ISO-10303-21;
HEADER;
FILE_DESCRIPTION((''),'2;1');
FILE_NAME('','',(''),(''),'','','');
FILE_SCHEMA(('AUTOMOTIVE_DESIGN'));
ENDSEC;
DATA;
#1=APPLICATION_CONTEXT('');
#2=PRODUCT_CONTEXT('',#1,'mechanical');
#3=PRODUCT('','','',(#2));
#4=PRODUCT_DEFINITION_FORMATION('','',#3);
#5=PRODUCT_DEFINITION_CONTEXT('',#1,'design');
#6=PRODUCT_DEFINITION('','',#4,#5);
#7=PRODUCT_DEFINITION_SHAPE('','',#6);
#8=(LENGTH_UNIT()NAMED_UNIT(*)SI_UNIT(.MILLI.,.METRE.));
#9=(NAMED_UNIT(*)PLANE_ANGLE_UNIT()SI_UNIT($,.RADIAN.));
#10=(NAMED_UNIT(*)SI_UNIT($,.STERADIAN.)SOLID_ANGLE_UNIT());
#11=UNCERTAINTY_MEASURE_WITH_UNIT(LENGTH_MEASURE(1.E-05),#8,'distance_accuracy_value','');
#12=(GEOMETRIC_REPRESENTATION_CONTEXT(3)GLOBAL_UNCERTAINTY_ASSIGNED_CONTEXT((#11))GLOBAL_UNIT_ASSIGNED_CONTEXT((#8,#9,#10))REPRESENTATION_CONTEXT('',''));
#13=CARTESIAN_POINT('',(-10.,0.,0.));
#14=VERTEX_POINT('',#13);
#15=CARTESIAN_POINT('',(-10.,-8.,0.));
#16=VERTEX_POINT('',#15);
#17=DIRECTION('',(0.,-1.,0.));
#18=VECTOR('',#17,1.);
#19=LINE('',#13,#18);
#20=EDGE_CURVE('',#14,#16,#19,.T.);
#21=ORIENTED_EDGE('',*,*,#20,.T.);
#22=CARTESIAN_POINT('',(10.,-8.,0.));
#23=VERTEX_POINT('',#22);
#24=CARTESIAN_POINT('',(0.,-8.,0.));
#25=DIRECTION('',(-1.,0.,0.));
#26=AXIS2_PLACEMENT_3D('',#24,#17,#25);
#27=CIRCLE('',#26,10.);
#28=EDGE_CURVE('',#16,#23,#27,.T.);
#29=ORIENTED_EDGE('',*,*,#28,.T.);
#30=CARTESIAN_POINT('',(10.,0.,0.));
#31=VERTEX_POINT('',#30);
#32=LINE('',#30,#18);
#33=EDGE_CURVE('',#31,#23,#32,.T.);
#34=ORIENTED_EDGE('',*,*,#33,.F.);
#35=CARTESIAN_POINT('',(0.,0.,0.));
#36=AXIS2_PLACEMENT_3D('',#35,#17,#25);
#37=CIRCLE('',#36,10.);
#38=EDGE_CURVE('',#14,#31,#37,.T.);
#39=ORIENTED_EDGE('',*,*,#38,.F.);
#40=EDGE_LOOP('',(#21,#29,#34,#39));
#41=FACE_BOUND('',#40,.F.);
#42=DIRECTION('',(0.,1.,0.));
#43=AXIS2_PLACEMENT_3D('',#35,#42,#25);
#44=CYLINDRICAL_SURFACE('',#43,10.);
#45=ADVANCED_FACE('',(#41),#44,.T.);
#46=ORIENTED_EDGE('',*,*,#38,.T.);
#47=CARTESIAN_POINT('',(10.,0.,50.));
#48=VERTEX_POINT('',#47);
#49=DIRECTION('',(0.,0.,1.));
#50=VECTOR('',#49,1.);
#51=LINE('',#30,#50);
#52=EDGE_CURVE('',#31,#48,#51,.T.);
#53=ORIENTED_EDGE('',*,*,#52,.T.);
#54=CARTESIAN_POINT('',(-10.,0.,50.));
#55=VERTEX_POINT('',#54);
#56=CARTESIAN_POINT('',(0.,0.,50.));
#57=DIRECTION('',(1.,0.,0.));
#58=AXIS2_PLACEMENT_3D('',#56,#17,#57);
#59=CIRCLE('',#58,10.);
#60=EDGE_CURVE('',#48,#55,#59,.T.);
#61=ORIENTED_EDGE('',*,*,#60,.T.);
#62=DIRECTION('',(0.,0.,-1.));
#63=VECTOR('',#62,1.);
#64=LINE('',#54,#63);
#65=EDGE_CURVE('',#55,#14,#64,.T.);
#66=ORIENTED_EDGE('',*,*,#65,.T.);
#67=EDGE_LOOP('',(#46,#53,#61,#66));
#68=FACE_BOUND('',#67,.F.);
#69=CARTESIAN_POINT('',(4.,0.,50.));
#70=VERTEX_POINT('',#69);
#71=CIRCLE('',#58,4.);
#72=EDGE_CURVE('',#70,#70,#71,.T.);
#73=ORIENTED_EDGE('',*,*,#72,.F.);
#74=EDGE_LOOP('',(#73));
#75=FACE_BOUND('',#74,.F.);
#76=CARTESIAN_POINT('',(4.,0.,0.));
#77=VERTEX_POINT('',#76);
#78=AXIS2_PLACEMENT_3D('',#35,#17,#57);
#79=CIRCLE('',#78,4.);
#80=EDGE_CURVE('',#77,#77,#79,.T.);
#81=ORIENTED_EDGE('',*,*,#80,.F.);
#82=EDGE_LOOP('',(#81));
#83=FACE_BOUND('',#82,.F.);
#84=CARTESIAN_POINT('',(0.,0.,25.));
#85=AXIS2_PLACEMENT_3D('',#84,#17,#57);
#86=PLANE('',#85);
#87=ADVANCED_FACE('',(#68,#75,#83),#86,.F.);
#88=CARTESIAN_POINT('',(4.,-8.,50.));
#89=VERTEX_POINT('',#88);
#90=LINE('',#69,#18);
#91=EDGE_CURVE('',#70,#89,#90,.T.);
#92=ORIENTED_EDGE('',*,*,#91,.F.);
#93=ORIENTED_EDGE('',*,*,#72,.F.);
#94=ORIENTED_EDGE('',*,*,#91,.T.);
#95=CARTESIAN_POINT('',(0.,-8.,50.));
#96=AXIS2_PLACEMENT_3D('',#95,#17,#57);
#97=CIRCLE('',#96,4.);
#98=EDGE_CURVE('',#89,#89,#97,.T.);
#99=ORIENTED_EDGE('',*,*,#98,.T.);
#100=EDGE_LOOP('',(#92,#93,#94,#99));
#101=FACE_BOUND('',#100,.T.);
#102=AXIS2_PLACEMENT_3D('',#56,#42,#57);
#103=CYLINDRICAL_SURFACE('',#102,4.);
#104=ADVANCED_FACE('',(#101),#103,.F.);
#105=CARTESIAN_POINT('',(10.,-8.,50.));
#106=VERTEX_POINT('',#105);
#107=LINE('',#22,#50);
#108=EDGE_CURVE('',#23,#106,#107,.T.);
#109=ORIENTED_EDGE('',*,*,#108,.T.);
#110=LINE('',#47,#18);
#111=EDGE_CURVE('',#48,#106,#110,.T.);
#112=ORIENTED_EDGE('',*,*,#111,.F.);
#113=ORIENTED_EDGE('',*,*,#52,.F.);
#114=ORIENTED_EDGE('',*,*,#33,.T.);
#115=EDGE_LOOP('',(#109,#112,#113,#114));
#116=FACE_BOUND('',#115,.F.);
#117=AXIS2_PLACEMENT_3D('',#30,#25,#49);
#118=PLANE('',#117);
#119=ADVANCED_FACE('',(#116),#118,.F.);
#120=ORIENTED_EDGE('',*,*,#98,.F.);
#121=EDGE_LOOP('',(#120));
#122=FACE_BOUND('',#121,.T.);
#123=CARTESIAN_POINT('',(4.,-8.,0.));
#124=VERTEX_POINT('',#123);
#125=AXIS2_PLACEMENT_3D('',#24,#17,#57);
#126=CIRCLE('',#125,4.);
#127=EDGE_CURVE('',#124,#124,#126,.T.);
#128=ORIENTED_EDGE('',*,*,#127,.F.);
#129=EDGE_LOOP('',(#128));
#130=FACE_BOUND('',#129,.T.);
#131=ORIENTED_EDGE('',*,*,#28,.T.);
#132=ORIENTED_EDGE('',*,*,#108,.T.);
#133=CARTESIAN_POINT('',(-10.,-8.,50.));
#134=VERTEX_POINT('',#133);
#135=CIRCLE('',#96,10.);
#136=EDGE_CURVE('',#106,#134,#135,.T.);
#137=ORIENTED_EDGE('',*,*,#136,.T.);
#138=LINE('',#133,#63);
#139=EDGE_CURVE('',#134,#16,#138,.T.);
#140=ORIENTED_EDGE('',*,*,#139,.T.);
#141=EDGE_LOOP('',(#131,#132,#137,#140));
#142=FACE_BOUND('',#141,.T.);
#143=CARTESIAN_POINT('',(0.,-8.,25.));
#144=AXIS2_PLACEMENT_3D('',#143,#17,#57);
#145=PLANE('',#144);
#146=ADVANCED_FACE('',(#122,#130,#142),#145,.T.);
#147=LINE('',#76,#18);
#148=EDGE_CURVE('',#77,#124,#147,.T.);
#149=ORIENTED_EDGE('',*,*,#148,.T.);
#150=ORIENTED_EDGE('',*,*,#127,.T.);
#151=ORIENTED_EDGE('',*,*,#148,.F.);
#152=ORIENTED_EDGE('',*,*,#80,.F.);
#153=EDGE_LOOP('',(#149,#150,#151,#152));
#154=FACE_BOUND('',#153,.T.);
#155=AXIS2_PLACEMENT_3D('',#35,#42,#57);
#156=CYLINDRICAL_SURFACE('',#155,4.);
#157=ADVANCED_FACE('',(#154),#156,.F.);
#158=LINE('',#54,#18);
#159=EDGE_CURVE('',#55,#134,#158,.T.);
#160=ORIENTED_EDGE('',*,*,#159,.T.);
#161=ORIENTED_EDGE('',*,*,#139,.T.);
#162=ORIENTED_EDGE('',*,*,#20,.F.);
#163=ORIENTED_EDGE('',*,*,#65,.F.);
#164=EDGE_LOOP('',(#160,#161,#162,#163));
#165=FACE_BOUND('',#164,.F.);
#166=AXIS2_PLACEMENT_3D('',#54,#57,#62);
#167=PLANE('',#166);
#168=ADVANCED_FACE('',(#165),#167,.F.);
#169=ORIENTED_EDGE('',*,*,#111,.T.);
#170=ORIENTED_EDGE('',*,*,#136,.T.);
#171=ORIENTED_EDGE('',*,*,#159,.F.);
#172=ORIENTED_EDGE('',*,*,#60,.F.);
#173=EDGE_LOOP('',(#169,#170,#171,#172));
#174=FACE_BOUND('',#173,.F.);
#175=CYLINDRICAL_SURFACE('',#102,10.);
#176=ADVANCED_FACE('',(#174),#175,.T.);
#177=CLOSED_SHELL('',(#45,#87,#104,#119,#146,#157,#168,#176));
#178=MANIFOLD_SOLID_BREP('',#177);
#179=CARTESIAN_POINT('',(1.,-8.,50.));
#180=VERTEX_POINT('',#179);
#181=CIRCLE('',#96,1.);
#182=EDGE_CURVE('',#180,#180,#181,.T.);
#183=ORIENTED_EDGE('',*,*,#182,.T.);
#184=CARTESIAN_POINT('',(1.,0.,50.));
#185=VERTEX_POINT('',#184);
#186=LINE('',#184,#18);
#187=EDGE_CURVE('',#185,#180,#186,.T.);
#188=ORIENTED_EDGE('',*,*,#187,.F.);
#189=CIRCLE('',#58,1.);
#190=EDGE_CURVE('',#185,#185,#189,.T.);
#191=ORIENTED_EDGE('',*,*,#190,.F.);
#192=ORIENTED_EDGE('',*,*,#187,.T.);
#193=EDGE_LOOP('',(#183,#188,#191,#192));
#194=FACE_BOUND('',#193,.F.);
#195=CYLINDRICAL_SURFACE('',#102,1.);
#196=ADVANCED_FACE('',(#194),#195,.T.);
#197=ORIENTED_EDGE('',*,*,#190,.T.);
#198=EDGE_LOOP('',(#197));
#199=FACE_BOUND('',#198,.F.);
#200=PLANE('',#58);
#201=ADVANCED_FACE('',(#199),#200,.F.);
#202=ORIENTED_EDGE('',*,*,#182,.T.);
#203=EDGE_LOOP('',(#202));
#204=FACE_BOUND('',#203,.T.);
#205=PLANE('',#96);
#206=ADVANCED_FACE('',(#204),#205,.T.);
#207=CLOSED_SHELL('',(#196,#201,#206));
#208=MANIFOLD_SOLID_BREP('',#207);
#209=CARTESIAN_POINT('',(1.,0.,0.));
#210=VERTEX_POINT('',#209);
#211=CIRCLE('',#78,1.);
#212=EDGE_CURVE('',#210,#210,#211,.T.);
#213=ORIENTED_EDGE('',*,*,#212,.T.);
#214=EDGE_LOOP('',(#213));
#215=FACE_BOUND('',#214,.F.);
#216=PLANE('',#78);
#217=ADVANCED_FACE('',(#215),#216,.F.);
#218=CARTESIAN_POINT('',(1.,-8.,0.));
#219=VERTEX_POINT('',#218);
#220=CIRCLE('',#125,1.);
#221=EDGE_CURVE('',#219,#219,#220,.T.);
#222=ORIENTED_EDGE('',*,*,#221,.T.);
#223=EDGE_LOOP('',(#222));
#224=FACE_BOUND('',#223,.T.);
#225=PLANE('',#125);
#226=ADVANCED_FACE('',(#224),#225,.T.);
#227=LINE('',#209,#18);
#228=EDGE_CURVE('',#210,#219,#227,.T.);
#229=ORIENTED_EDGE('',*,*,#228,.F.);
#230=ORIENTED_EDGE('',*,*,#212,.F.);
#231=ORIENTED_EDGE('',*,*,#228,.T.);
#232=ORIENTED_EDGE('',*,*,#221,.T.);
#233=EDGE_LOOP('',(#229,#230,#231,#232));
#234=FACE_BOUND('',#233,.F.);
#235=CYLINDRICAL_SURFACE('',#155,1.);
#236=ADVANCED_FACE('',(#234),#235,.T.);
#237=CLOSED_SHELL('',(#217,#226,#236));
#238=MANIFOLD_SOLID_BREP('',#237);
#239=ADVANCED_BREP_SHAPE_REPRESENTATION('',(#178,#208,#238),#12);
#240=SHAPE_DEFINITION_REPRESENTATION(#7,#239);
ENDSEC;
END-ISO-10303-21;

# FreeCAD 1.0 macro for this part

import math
import FreeCAD as App
import Part
import Sketcher
Q = App.Units.Quantity

doc = App.newDocument("Part")
body = doc.addObject("PartDesign::Body", "Body")

sketch1 = doc.addObject("Sketcher::SketchObject", "Sketch")
body.addObject(sketch1)
sketch1.AttachmentSupport = (doc.XZ_Plane, [""])
sketch1.MapMode = "FlatFace"
sketch1.addGeometry([
    Part.LineSegment(App.Vector(-10, 50, 0), App.Vector(-10, 0, 0)),
    Part.ArcOfCircle(Part.Circle(App.Vector(0, 0, 0), App.Vector(0, 0, 1), 10), math.radians(180), math.radians(360)),
    Part.LineSegment(App.Vector(10, 0, 0), App.Vector(10, 50, 0)),
    Part.ArcOfCircle(Part.Circle(App.Vector(0, 50, 0), App.Vector(0, 0, 1), 10), math.radians(0), math.radians(180)),
    Part.Circle(App.Vector(0, 0, 0), App.Vector(0, 0, 1), 4),
    Part.Circle(App.Vector(0, 50, 0), App.Vector(0, 0, 1), 4),
], False)
sketch1.addConstraint([
    Sketcher.Constraint("Tangent", 0, 2, 1, 1),
    Sketcher.Constraint("Tangent", 1, 2, 2, 1),
    Sketcher.Constraint("Tangent", 2, 2, 3, 1),
    Sketcher.Constraint("Tangent", 3, 2, 0, 1),
    Sketcher.Constraint("Vertical", 0),
    Sketcher.Constraint("Vertical", 2),
    Sketcher.Constraint("Coincident", 1, 3, -1, 1),
    Sketcher.Constraint("Coincident", 4, 3, -1, 1),
    Sketcher.Constraint("Coincident", 5, 3, 3, 3),
    Sketcher.Constraint("Equal", 4, 5),
    Sketcher.Constraint("Diameter", 4, Q("8 mm")),
    Sketcher.Constraint("Radius", 1, Q("10 mm")),
    Sketcher.Constraint("DistanceY", 0, 2, 0, 1, Q("50 mm")),
])
pad1 = doc.addObject("PartDesign::Pad", "Pad")
body.addObject(pad1)
pad1.Profile = sketch1
pad1.Length = 8
body2 = doc.addObject("PartDesign::Body", "Body001")
body2.AllowCompound = True

sketch2 = doc.addObject("Sketcher::SketchObject", "Sketch001")
body2.addObject(sketch2)
sketch2.AttachmentSupport = (doc.getObject("XZ_Plane001"), [""])
sketch2.MapMode = "FlatFace"
sketch2.addGeometry([
    Part.Circle(App.Vector(0, 0, 0), App.Vector(0, 0, 1), 1),
    Part.Circle(App.Vector(0, 50, 0), App.Vector(0, 0, 1), 1),
], False)
sketch2.addConstraint([
    Sketcher.Constraint("Coincident", 0, 3, -1, 1),
    Sketcher.Constraint("Equal", 0, 1),
    Sketcher.Constraint("PointOnObject", 1, 3, -2),
    Sketcher.Constraint("Diameter", 0, Q("2 mm")),
    Sketcher.Constraint("DistanceY", -1, 1, 1, 3, Q("50 mm")),
])
pad2 = doc.addObject("PartDesign::Pad", "Pad001")
body2.addObject(pad2)
pad2.Profile = sketch2
pad2.Length = 8

doc.recompute()
